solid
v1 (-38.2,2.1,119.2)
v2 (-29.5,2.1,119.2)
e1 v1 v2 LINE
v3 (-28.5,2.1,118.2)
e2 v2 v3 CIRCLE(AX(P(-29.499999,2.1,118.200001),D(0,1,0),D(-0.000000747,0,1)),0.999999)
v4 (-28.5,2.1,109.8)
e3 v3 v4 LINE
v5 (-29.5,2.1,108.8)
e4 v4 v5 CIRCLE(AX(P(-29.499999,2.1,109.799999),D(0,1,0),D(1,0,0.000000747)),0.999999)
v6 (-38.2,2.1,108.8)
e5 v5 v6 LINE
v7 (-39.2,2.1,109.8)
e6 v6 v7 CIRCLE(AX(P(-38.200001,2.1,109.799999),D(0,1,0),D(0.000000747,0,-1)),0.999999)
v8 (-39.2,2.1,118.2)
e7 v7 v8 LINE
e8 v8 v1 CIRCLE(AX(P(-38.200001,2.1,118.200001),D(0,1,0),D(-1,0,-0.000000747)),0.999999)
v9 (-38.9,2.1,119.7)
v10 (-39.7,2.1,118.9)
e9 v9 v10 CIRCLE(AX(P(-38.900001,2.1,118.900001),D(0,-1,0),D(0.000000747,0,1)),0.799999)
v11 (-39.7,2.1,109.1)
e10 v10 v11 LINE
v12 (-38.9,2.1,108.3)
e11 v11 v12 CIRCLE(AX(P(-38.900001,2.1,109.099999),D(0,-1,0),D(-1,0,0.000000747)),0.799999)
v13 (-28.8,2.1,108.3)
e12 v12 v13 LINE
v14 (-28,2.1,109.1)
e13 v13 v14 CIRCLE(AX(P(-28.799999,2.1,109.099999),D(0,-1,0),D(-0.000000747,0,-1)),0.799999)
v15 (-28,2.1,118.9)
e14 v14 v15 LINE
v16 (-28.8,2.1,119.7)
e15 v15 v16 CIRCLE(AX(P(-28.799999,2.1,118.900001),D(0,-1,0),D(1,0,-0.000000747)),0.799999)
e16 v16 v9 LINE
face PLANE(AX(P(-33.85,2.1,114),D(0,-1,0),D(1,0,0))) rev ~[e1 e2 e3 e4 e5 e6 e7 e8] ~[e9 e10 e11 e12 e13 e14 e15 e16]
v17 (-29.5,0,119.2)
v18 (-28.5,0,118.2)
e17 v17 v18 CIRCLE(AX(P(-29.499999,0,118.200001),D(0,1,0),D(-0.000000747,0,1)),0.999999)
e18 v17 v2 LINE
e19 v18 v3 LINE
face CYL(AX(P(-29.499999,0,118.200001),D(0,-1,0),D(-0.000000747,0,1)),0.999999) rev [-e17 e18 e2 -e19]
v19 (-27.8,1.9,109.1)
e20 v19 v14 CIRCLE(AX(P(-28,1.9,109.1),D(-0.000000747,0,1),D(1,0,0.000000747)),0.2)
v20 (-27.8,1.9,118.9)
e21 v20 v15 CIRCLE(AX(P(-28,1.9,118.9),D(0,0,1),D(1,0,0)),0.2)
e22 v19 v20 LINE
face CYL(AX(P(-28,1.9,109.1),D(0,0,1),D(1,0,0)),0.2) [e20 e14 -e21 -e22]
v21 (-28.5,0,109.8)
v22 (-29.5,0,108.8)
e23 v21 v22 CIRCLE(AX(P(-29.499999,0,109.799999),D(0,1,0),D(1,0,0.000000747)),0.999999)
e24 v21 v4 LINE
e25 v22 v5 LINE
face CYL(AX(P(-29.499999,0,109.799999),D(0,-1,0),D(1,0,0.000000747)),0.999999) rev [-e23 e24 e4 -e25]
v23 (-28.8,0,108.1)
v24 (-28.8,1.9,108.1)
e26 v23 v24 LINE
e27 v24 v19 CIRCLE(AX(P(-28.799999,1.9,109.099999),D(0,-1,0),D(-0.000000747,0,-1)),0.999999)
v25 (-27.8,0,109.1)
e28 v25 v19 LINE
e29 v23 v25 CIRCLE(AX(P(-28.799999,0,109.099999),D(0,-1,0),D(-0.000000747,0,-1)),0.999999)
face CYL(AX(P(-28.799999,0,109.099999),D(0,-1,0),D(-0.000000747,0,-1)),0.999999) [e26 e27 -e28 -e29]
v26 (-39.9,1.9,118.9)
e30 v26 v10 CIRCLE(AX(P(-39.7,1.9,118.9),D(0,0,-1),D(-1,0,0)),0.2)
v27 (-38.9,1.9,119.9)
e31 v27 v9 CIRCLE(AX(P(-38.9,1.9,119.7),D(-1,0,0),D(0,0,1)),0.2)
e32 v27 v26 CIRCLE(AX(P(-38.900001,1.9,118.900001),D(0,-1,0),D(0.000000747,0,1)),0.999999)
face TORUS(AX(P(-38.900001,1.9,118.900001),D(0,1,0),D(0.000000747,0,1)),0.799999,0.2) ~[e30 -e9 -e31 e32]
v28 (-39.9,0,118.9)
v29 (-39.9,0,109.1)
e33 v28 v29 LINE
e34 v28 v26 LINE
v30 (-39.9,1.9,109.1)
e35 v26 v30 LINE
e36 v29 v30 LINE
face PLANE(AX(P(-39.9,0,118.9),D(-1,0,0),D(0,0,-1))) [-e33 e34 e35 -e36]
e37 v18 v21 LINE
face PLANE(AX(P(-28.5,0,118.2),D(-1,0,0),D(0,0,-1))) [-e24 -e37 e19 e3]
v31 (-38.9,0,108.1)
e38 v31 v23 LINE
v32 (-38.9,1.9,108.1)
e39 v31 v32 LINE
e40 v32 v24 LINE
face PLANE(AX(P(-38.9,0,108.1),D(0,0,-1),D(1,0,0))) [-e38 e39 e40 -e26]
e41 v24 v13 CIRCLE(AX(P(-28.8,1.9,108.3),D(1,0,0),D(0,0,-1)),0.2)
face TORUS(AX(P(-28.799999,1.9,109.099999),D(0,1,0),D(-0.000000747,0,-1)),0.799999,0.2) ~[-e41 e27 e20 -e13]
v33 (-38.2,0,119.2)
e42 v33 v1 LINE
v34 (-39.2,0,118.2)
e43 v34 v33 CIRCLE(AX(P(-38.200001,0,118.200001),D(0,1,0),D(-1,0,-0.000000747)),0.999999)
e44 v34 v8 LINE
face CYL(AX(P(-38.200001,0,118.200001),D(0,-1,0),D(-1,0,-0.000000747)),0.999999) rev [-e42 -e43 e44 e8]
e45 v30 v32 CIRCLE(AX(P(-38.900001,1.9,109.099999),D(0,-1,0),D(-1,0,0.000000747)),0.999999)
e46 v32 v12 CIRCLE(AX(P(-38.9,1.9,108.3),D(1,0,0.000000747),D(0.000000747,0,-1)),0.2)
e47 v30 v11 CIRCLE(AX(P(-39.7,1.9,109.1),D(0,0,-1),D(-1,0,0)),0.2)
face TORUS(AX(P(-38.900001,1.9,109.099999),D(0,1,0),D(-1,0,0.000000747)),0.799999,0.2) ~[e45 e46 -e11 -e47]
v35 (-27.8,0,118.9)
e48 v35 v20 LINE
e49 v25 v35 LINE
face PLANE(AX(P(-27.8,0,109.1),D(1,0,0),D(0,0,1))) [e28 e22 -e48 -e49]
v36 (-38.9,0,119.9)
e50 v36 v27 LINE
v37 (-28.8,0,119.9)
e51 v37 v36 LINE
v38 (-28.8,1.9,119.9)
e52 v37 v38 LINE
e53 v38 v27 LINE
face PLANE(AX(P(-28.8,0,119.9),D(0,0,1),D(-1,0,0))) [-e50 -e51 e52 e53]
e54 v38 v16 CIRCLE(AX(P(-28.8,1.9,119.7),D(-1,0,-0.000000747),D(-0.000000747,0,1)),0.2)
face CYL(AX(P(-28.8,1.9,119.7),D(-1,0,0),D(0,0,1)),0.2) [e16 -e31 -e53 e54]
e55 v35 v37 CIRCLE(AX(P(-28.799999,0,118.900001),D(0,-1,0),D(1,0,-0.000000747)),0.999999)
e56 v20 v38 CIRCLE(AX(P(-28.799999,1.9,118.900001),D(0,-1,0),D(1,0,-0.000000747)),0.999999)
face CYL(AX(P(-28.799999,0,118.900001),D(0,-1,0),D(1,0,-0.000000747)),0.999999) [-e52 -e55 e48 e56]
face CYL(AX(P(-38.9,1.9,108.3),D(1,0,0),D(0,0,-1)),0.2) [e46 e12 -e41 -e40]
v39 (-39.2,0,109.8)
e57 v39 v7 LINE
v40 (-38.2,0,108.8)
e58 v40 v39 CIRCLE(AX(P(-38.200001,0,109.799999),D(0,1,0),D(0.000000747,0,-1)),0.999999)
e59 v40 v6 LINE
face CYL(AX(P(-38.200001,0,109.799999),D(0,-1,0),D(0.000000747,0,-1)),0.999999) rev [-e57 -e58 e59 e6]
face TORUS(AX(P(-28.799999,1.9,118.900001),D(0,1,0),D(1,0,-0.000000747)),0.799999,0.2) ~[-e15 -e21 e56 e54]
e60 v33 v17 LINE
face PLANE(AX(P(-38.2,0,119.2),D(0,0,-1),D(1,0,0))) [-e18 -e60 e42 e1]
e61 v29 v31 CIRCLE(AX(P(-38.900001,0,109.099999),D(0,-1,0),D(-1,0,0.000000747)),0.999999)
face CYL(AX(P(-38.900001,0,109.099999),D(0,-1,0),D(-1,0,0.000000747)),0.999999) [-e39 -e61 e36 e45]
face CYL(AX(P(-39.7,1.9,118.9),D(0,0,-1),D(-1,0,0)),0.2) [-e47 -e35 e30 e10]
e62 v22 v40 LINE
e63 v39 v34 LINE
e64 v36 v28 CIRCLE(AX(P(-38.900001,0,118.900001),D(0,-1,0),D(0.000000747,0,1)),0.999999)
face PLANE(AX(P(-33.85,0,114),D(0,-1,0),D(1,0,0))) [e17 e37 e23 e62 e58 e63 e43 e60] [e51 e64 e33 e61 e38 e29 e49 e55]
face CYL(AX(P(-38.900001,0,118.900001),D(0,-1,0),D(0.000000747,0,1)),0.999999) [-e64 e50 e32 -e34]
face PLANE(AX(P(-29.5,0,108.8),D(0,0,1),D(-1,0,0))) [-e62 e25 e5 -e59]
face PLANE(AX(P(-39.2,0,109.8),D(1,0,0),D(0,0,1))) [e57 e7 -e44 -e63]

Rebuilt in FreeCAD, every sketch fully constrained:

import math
import FreeCAD as App
import Part
import Sketcher


def edges_at(feature, points):
    """Names of the edges that pass closest to the given points."""
    edges = feature.Shape.Edges
    near = lambda p: min(range(len(edges)), key=lambda i: edges[i].distToShape(Part.Vertex(*p))[0])
    return sorted({f"Edge{near(p) + 1}" for p in points})

doc = App.newDocument("Part")
params = doc.addObject("Spreadsheet::Sheet", "Params")
for row, (alias, value) in enumerate([
    ("sketch1_radius", "0.999999 mm"),
    ("sketch1_width", "10.1 mm"),
    ("sketch1_width2", "8.7 mm"),
    ("sketch1_height", "9.8 mm"),
    ("sketch1_height2", "8.4 mm"),
    ("pad1_length", "2.1 mm"),
    ("fillet_radius", "0.2 mm"),
], start=1):
    params.set(f"A{row}", alias)
    params.set(f"B{row}", "=" + value)
    params.setAlias(f"B{row}", alias)

body = doc.addObject("PartDesign::Body", "Body")

sketch1 = body.newObject("Sketcher::SketchObject", "Sketch")
sketch1.AttachmentSupport = (doc.getObject("XZ_Plane"), [""])
sketch1.MapMode = "FlatFace"
sketch1.addGeometry(Part.ArcOfCircle(Part.Circle(App.Vector(-28.8, 118.9, 0), App.Vector(0, 0, 1), 1), math.radians(0), math.radians(90)), False)
sketch1.addGeometry(Part.LineSegment(App.Vector(-28.8, 119.9, 0), App.Vector(-38.9, 119.9, 0)), False)
sketch1.addGeometry(Part.ArcOfCircle(Part.Circle(App.Vector(-38.9, 118.9, 0), App.Vector(0, 0, 1), 1), math.radians(90), math.radians(180)), False)
sketch1.addGeometry(Part.LineSegment(App.Vector(-39.9, 118.9, 0), App.Vector(-39.9, 109.1, 0)), False)
sketch1.addGeometry(Part.ArcOfCircle(Part.Circle(App.Vector(-38.9, 109.1, 0), App.Vector(0, 0, 1), 1), math.radians(180), math.radians(270)), False)
sketch1.addGeometry(Part.LineSegment(App.Vector(-38.9, 108.1, 0), App.Vector(-28.8, 108.1, 0)), False)
sketch1.addGeometry(Part.ArcOfCircle(Part.Circle(App.Vector(-28.8, 109.1, 0), App.Vector(0, 0, 1), 1), math.radians(-90), math.radians(0)), False)
sketch1.addGeometry(Part.LineSegment(App.Vector(-27.8, 109.1, 0), App.Vector(-27.8, 118.9, 0)), False)
sketch1.addGeometry(Part.ArcOfCircle(Part.Circle(App.Vector(-38.2, 118.2, 0), App.Vector(0, 0, 1), 1), math.radians(90), math.radians(180)), False)
sketch1.addGeometry(Part.LineSegment(App.Vector(-38.2, 119.2, 0), App.Vector(-29.5, 119.2, 0)), False)
sketch1.addGeometry(Part.ArcOfCircle(Part.Circle(App.Vector(-29.5, 118.2, 0), App.Vector(0, 0, 1), 1), math.radians(0), math.radians(90)), False)
sketch1.addGeometry(Part.LineSegment(App.Vector(-28.5, 118.2, 0), App.Vector(-28.5, 109.8, 0)), False)
sketch1.addGeometry(Part.ArcOfCircle(Part.Circle(App.Vector(-29.5, 109.8, 0), App.Vector(0, 0, 1), 1), math.radians(-90), math.radians(0)), False)
sketch1.addGeometry(Part.LineSegment(App.Vector(-29.5, 108.8, 0), App.Vector(-38.2, 108.8, 0)), False)
sketch1.addGeometry(Part.ArcOfCircle(Part.Circle(App.Vector(-38.2, 109.8, 0), App.Vector(0, 0, 1), 1), math.radians(180), math.radians(270)), False)
sketch1.addGeometry(Part.LineSegment(App.Vector(-39.2, 109.8, 0), App.Vector(-39.2, 118.2, 0)), False)
sketch1.addConstraint(Sketcher.Constraint("Tangent", 0, 2, 1, 1))
sketch1.addConstraint(Sketcher.Constraint("Tangent", 1, 2, 2, 1))
sketch1.addConstraint(Sketcher.Constraint("Tangent", 2, 2, 3, 1))
sketch1.addConstraint(Sketcher.Constraint("Tangent", 3, 2, 4, 1))
sketch1.addConstraint(Sketcher.Constraint("Tangent", 4, 2, 5, 1))
sketch1.addConstraint(Sketcher.Constraint("Tangent", 5, 2, 6, 1))
sketch1.addConstraint(Sketcher.Constraint("Tangent", 6, 2, 7, 1))
sketch1.addConstraint(Sketcher.Constraint("Tangent", 7, 2, 0, 1))
sketch1.addConstraint(Sketcher.Constraint("Tangent", 8, 1, 9, 1))
sketch1.addConstraint(Sketcher.Constraint("Tangent", 9, 2, 10, 2))
sketch1.addConstraint(Sketcher.Constraint("Tangent", 10, 1, 11, 1))
sketch1.addConstraint(Sketcher.Constraint("Tangent", 11, 2, 12, 2))
sketch1.addConstraint(Sketcher.Constraint("Tangent", 12, 1, 13, 1))
sketch1.addConstraint(Sketcher.Constraint("Tangent", 13, 2, 14, 2))
sketch1.addConstraint(Sketcher.Constraint("Tangent", 14, 1, 15, 1))
sketch1.addConstraint(Sketcher.Constraint("Tangent", 15, 2, 8, 2))
sketch1.addConstraint(Sketcher.Constraint("Horizontal", 1))
sketch1.addConstraint(Sketcher.Constraint("Vertical", 3))
sketch1.addConstraint(Sketcher.Constraint("Horizontal", 5))
sketch1.addConstraint(Sketcher.Constraint("Vertical", 7))
sketch1.addConstraint(Sketcher.Constraint("Horizontal", 9))
sketch1.addConstraint(Sketcher.Constraint("Vertical", 11))
sketch1.addConstraint(Sketcher.Constraint("Horizontal", 13))
sketch1.addConstraint(Sketcher.Constraint("Vertical", 15))
sketch1.addConstraint(Sketcher.Constraint("Equal", 0, 2))
sketch1.addConstraint(Sketcher.Constraint("Equal", 2, 4))
sketch1.addConstraint(Sketcher.Constraint("Equal", 4, 6))
sketch1.addConstraint(Sketcher.Constraint("Equal", 6, 8))
sketch1.addConstraint(Sketcher.Constraint("Equal", 8, 10))
sketch1.addConstraint(Sketcher.Constraint("Equal", 10, 12))
sketch1.addConstraint(Sketcher.Constraint("Equal", 12, 14))
sketch1.addConstraint(Sketcher.Constraint("Radius", 0, 0.999999))
sketch1.addConstraint(Sketcher.Constraint("DistanceX", 1, 2, 1, 1, 10.1))
sketch1.addConstraint(Sketcher.Constraint("DistanceX", 9, 1, 9, 2, 8.7))
sketch1.addConstraint(Sketcher.Constraint("DistanceY", 3, 2, 3, 1, 9.8))
sketch1.addConstraint(Sketcher.Constraint("DistanceY", 11, 2, 11, 1, 8.4))
sketch1.addConstraint(Sketcher.Constraint("DistanceX", 0, 3, -1, 1, 28.799999))
sketch1.addConstraint(Sketcher.Constraint("DistanceY", -1, 1, 0, 3, 118.900001))
sketch1.addConstraint(Sketcher.Constraint("DistanceX", 8, 3, -1, 1, 38.200001))
sketch1.addConstraint(Sketcher.Constraint("DistanceY", -1, 1, 8, 3, 118.200001))
sketch1.setExpression("Constraints[31]", "Params.sketch1_radius")
sketch1.setExpression("Constraints[32]", "Params.sketch1_width")
sketch1.setExpression("Constraints[33]", "Params.sketch1_width2")
sketch1.setExpression("Constraints[34]", "Params.sketch1_height")
sketch1.setExpression("Constraints[35]", "Params.sketch1_height2")
pad1 = body.newObject("PartDesign::Pad", "Pad")
pad1.Profile = sketch1
pad1.setExpression("Length", "Params.pad1_length")
pad1.Reversed = True
doc.recompute()

fillet = body.newObject("PartDesign::Fillet", "Fillet")
fillet.Base = (pad1, edges_at(pad1, [
    (-39.9, 2.1, 114),
    (-33.85, 2.1, 119.9),
    (-33.85, 2.1, 108.1),
    (-28.093, 2.1, 108.393),
    (-28.093, 2.1, 119.607),
    (-39.607, 2.1, 119.607),
    (-39.607, 2.1, 108.393),
    (-27.8, 2.1, 114),
]))
fillet.setExpression("Radius", "Params.fillet_radius")

doc.recompute()
